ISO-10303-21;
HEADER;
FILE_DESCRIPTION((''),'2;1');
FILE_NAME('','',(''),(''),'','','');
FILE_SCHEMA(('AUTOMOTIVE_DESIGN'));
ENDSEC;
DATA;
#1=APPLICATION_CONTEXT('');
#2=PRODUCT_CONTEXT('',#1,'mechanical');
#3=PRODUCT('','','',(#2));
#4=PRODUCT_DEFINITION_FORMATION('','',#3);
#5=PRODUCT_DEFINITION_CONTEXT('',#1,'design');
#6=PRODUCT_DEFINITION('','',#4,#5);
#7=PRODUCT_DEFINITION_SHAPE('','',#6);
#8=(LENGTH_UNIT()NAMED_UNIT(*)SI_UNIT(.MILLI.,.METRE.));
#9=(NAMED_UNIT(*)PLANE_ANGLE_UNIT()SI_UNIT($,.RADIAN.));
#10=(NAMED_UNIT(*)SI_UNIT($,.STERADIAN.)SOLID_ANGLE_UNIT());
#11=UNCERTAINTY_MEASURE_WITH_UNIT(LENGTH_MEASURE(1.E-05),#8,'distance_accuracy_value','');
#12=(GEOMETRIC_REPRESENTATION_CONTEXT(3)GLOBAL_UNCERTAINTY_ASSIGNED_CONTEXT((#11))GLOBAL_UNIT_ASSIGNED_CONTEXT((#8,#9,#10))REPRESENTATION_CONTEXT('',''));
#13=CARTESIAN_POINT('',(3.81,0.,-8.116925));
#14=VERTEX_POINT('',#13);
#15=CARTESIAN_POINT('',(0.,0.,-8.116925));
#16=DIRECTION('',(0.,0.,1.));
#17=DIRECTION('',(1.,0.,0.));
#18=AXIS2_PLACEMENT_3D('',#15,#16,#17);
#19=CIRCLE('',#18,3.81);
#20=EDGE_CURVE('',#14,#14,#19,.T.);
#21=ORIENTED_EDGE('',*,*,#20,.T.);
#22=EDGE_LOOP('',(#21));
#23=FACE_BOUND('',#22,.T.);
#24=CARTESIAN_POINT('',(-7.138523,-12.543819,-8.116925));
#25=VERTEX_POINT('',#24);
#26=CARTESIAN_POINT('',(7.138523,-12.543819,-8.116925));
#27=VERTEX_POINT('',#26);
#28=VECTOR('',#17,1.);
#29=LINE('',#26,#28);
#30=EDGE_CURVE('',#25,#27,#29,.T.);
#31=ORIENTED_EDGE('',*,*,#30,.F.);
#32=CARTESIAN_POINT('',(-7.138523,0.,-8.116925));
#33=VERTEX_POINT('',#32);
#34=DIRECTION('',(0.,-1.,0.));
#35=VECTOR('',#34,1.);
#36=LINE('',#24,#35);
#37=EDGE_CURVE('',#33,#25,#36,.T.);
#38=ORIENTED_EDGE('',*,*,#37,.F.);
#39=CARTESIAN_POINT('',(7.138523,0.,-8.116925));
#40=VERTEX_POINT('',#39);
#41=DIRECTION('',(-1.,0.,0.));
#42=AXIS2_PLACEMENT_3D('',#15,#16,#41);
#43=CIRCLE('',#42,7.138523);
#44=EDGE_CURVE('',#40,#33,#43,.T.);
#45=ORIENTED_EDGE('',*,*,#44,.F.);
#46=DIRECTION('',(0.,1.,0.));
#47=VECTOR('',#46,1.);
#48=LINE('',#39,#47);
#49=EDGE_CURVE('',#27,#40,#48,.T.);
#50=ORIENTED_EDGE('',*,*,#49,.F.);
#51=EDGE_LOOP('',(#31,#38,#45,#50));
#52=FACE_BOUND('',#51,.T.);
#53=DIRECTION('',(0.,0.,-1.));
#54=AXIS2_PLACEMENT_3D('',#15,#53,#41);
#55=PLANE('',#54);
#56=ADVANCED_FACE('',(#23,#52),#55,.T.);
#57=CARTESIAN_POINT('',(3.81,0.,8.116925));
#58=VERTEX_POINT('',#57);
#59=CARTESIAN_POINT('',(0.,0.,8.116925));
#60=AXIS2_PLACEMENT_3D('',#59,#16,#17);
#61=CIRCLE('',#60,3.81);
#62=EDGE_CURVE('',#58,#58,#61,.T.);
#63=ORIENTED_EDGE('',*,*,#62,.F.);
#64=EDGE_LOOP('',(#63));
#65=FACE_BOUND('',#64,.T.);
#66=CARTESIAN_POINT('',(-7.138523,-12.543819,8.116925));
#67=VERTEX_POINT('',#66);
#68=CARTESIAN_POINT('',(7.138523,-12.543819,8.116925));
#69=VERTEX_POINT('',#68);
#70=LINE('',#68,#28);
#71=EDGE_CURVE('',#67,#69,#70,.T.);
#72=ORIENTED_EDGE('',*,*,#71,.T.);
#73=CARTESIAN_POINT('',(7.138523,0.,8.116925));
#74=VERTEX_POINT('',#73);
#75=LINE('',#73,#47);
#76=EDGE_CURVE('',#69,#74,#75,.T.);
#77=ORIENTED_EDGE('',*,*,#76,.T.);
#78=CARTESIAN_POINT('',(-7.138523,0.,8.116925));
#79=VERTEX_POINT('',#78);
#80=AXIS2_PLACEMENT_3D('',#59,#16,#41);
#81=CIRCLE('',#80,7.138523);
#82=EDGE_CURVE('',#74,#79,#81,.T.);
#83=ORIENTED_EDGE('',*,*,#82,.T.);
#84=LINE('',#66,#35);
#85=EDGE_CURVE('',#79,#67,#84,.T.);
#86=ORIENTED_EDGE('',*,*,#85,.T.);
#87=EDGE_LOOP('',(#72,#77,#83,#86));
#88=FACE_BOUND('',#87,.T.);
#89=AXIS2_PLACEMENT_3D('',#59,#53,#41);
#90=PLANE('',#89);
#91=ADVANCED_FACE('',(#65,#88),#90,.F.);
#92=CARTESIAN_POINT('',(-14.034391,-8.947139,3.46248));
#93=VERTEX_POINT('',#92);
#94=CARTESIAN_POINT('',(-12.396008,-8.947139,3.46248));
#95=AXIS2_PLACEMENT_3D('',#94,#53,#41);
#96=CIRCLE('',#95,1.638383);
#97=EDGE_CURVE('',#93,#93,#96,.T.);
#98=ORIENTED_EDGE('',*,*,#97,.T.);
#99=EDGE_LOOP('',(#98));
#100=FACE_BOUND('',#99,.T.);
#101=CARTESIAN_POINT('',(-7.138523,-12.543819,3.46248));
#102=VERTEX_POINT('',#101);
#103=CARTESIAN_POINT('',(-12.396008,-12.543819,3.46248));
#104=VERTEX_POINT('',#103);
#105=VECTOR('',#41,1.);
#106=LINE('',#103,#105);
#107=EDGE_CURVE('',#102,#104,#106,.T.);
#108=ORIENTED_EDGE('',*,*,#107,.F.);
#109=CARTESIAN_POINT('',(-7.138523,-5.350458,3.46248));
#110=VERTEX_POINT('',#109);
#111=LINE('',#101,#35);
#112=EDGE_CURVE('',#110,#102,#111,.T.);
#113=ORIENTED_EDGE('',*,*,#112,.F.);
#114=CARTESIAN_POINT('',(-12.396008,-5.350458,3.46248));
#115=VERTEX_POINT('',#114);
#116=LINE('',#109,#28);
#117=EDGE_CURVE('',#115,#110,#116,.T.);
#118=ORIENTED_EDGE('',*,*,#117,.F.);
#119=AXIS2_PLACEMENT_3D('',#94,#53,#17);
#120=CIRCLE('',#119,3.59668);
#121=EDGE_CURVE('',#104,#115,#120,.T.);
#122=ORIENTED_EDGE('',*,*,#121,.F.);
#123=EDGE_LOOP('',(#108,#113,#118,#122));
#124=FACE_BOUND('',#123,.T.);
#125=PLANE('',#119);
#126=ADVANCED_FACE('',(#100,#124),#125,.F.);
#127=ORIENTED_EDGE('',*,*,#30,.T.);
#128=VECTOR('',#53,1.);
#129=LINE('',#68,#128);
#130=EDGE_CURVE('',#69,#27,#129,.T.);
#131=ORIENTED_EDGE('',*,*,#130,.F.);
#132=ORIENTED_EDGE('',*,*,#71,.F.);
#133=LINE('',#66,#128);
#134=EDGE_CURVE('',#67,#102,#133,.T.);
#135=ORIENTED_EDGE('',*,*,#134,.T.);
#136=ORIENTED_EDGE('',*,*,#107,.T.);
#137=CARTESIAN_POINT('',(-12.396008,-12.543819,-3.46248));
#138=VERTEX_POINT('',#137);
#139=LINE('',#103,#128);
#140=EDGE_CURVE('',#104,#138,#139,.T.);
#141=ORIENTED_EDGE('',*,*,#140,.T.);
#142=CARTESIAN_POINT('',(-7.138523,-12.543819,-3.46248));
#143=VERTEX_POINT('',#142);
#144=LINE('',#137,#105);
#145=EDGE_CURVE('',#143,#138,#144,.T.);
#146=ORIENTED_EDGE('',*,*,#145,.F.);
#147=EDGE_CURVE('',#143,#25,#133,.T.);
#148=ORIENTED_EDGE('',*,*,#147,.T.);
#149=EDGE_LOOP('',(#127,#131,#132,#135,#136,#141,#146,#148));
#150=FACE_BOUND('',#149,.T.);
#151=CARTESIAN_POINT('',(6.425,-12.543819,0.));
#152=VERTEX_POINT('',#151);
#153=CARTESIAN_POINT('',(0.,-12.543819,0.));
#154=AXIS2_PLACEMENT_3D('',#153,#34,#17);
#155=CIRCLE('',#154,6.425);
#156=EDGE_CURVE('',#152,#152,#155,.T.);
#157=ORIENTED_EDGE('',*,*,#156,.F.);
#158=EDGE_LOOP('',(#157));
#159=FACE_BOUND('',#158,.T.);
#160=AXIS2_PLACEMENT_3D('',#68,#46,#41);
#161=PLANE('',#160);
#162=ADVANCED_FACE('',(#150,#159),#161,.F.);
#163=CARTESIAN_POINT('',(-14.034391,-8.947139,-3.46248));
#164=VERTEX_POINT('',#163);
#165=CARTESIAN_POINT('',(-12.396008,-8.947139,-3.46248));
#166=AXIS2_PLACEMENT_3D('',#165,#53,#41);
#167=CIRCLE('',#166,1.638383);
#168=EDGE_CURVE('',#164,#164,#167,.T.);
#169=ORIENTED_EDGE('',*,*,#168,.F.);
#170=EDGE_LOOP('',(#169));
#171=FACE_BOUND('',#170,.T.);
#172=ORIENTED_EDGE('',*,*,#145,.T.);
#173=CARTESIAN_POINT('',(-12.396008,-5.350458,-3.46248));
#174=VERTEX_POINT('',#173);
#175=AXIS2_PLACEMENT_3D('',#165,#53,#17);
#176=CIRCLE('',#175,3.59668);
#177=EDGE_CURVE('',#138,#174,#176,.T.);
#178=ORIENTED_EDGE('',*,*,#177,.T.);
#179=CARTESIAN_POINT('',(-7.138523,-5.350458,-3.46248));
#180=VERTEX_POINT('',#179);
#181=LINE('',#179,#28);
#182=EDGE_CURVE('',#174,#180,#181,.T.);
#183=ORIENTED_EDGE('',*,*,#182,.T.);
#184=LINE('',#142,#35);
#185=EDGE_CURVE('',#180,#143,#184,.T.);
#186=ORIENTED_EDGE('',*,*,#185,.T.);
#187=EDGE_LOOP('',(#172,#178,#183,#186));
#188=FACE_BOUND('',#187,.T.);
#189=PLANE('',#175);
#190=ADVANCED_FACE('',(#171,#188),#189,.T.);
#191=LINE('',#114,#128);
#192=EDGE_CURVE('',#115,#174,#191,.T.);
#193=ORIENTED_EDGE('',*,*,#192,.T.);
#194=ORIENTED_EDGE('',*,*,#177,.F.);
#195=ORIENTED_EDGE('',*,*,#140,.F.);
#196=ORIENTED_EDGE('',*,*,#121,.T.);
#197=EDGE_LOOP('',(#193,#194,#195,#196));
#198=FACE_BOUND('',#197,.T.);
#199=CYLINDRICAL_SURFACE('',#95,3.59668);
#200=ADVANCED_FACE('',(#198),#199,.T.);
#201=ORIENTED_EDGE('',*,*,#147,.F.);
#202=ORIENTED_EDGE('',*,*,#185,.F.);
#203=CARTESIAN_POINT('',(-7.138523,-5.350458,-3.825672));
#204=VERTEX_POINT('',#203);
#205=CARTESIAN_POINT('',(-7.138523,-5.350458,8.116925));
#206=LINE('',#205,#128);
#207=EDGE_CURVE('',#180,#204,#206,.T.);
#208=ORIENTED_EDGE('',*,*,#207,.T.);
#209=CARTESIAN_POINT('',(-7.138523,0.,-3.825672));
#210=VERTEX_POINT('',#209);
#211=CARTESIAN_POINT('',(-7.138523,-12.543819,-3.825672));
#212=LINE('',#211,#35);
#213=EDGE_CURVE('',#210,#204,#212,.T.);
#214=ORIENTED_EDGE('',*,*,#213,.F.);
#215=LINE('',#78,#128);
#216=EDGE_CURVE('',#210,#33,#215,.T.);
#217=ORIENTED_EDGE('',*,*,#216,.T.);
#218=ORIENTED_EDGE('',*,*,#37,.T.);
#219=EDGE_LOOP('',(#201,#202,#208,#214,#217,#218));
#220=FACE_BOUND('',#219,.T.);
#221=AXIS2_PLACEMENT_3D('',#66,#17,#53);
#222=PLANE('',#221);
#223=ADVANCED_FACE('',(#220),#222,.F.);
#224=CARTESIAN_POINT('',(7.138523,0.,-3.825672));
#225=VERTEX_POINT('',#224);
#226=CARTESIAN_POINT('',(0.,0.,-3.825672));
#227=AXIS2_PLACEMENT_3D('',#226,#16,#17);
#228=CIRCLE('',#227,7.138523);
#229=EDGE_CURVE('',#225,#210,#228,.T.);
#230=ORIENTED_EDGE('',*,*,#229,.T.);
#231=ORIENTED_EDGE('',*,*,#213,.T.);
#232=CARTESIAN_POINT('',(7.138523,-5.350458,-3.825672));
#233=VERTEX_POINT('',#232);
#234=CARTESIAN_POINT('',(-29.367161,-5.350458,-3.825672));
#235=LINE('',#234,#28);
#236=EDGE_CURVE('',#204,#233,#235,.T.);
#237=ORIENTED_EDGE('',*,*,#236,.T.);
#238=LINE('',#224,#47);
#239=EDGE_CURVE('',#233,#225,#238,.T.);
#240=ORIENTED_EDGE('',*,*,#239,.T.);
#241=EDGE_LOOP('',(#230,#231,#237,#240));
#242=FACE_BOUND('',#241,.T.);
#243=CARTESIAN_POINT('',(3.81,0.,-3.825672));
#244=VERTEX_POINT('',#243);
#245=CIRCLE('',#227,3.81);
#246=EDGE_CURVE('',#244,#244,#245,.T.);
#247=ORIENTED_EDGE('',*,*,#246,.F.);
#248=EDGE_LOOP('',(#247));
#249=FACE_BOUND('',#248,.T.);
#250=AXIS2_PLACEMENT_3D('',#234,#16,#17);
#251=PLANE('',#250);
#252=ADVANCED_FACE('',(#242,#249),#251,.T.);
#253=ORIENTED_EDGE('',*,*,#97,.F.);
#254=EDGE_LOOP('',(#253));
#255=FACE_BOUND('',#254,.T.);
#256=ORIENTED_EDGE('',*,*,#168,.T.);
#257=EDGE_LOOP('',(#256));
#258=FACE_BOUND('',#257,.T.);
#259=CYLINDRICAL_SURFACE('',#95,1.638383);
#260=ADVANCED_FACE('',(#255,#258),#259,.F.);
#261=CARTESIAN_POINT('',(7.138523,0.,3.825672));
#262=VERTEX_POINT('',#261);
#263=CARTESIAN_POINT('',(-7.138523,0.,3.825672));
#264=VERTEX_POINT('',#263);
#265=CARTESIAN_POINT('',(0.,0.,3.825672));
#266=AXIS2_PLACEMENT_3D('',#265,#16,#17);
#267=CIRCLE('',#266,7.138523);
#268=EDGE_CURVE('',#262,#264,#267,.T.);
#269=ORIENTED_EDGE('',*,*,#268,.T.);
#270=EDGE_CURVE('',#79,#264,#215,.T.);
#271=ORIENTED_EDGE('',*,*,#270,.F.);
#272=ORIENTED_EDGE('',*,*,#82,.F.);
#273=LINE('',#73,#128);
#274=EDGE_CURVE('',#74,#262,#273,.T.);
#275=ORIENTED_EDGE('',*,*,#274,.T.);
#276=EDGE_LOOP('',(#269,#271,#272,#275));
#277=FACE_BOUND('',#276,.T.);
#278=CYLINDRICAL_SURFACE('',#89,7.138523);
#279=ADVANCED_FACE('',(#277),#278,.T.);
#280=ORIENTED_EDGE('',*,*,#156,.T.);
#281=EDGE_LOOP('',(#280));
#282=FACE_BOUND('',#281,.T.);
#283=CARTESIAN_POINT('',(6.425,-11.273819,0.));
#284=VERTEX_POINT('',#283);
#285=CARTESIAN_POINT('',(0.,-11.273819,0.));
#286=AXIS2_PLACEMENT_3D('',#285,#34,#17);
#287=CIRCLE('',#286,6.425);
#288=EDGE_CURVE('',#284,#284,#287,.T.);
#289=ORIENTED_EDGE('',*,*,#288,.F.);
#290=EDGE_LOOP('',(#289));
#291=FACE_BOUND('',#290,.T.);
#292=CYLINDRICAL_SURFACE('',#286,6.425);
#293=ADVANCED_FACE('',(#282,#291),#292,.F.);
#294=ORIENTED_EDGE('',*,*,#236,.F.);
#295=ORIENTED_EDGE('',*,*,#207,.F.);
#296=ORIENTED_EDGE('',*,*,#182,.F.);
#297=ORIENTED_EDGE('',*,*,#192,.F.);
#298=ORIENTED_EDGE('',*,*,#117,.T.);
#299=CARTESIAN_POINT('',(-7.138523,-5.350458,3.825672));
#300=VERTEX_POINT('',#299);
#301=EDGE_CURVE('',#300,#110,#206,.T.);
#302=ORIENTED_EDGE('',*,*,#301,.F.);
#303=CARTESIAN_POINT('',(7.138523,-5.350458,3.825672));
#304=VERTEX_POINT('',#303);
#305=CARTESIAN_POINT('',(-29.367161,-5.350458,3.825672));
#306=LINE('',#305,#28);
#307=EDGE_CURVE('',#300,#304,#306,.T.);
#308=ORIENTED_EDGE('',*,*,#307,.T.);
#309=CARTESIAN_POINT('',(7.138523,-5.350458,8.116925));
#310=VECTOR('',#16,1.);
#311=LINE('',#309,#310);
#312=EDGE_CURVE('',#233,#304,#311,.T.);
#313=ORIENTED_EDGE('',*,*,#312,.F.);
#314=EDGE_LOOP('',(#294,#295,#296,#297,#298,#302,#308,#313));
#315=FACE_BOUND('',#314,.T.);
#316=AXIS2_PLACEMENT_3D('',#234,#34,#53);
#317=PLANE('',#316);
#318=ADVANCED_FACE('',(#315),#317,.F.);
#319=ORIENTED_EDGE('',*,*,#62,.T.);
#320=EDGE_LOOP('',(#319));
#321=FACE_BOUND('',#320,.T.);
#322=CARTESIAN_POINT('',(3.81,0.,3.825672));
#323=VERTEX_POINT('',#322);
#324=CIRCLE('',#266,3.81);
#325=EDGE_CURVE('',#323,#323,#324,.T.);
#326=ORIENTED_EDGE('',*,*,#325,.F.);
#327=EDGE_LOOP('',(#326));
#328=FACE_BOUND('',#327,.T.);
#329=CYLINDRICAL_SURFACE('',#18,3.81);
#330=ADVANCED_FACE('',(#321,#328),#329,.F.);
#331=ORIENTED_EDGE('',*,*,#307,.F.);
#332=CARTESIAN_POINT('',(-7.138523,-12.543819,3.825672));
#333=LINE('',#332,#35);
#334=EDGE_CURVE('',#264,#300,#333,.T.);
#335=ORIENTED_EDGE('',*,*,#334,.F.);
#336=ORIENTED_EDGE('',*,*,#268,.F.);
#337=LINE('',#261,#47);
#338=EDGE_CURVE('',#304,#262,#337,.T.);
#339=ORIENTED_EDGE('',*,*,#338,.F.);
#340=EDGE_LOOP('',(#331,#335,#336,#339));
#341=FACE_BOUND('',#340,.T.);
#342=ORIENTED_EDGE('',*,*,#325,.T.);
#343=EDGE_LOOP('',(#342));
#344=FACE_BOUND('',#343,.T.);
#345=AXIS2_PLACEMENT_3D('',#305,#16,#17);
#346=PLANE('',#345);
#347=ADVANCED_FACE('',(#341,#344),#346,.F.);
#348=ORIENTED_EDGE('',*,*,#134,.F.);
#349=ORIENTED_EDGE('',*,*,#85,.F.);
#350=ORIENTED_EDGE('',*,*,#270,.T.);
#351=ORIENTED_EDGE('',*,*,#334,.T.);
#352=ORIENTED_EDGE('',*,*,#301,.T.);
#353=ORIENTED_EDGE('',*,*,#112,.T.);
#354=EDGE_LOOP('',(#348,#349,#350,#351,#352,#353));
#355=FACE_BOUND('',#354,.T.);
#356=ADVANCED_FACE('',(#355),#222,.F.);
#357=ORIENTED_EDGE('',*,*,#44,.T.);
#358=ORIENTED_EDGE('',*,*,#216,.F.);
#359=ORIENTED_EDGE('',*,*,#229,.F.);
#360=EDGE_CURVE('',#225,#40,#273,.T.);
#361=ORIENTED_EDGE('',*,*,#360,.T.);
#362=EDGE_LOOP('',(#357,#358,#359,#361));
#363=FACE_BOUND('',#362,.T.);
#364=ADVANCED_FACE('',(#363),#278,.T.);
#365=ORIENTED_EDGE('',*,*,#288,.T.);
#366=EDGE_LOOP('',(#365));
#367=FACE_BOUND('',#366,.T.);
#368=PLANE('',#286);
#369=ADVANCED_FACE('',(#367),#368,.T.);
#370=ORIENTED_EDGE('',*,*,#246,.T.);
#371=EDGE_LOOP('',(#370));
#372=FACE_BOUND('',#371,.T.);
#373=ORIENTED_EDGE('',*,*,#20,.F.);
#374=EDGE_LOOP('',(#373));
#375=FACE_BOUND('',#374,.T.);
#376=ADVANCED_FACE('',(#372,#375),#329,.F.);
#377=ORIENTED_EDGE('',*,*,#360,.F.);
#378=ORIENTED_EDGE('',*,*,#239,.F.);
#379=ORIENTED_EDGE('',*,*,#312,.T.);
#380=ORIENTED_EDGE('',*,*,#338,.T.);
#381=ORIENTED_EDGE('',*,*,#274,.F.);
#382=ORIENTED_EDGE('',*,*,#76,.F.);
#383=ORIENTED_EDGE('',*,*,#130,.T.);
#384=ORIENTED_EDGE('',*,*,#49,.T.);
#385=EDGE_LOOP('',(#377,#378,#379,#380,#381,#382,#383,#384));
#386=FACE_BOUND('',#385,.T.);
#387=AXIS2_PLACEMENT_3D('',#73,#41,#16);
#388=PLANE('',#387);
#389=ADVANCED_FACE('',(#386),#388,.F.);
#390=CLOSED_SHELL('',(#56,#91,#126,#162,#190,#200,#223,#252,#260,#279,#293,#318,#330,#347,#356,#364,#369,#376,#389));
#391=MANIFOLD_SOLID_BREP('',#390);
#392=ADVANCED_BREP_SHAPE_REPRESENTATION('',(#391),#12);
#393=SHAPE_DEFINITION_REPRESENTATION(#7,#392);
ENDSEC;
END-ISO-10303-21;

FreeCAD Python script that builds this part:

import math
import FreeCAD as App
import Part
import Sketcher

V = App.Vector
Q = App.Units.Quantity


def add_polygon(sketch, points):
    """Adds a closed chain of lines whose ends are joined by coincident constraints."""
    first, n = sketch.GeometryCount, len(points)
    for a, b in zip(points, points[1:] + points[:1]):
        sketch.addGeometry(Part.LineSegment(App.Vector(*a, 0), App.Vector(*b, 0)), False)
    for i in range(n):
        sketch.addConstraint(Sketcher.Constraint("Coincident", first + i, 2, first + (i + 1) % n, 1))

doc = App.newDocument("Part")
body = doc.addObject("PartDesign::Body", "Body")

sketch1 = doc.addObject("Sketcher::SketchObject", "Sketch")
body.addObject(sketch1)
sketch1.AttachmentSupport = (doc.XY_Plane, [""])
sketch1.MapMode = "FlatFace"
sketch1.addGeometry(Part.LineSegment(V(-7.138523, 0, 0), V(-7.138523, -12.543819, 0)), False)
sketch1.addGeometry(Part.LineSegment(V(-7.138523, -12.543819, 0), V(7.138523, -12.543819, 0)), False)
sketch1.addGeometry(Part.LineSegment(V(7.138523, -12.543819, 0), V(7.138523, 0, 0)), False)
sketch1.addGeometry(Part.ArcOfCircle(Part.Circle(V(0, 0, 0), V(0, 0, 1), 7.138523), math.radians(0), math.radians(180)), False)
sketch1.addConstraint(Sketcher.Constraint("Coincident", 0, 2, 1, 1))
sketch1.addConstraint(Sketcher.Constraint("Coincident", 1, 2, 2, 1))
sketch1.addConstraint(Sketcher.Constraint("Tangent", 2, 2, 3, 1))
sketch1.addConstraint(Sketcher.Constraint("Tangent", 3, 2, 0, 1))
sketch1.addConstraint(Sketcher.Constraint("Vertical", 0))
sketch1.addConstraint(Sketcher.Constraint("Horizontal", 1))
sketch1.addConstraint(Sketcher.Constraint("Vertical", 2))
sketch1.addConstraint(Sketcher.Constraint("Coincident", 3, 3, -1, 1))
sketch1.addConstraint(Sketcher.Constraint("Radius", 3, 7.138523))
sketch1.addConstraint(Sketcher.Constraint("DistanceY", 0, 2, 0, 1, 12.543819))
pad1 = doc.addObject("PartDesign::Pad", "Pad")
body.addObject(pad1)
pad1.Profile = sketch1
pad1.Length = 16.23385
pad1.Midplane = True

sketch2 = doc.addObject("Sketcher::SketchObject", "Sketch001")
body.addObject(sketch2)
sketch2.AttachmentSupport = (doc.XY_Plane, [""])
sketch2.MapMode = "FlatFace"
add_polygon(sketch2, [(-29.367161, 24.405762), (-29.367161, -5.350458), (26.794675, -5.350458), (26.794675, 24.405762)])
sketch2.addConstraint(Sketcher.Constraint("Vertical", 0))
sketch2.addConstraint(Sketcher.Constraint("Horizontal", 1))
sketch2.addConstraint(Sketcher.Constraint("Vertical", 2))
sketch2.addConstraint(Sketcher.Constraint("Horizontal", 3))
sketch2.addConstraint(Sketcher.Constraint("DistanceY", 0, 2, 0, 1, 29.756221))
sketch2.addConstraint(Sketcher.Constraint("DistanceX", 1, 1, 1, 2, 56.161837))
sketch2.addConstraint(Sketcher.Constraint("DistanceX", 0, 2, -1, 1, 29.367161))
sketch2.addConstraint(Sketcher.Constraint("DistanceY", 0, 2, -1, 1, 5.350458))
pocket1 = doc.addObject("PartDesign::Pocket", "Pocket")
body.addObject(pocket1)
pocket1.Profile = sketch2
pocket1.Length = 7.651345
pocket1.Midplane = True

sketch3 = doc.addObject("Sketcher::SketchObject", "Sketch002")
body.addObject(sketch3)
sketch3.AttachmentSupport = (doc.XY_Plane, [""])
sketch3.MapMode = "FlatFace"
sketch3.AttachmentOffset = App.Placement(V(0, 0, 8.116925), App.Rotation())
sketch3.addGeometry(Part.Circle(V(0, 0, 0), V(0, 0, 1), 3.81), False)
sketch3.addConstraint(Sketcher.Constraint("Coincident", 0, 3, -1, 1))
sketch3.addConstraint(Sketcher.Constraint("Diameter", 0, Q("0.3 in")))
pocket2 = doc.addObject("PartDesign::Pocket", "Pocket001")
body.addObject(pocket2)
pocket2.Profile = sketch3
pocket2.Type = "ThroughAll"

sketch4 = doc.addObject("Sketcher::SketchObject", "Sketch003")
body.addObject(sketch4)
sketch4.AttachmentSupport = (doc.XZ_Plane, [""])
sketch4.MapMode = "FlatFace"
sketch4.AttachmentOffset = App.Placement(V(0, 0, 12.543819), App.Rotation())
sketch4.addGeometry(Part.Circle(V(0, 0, 0), V(0, 0, 1), 6.425), False)
sketch4.addConstraint(Sketcher.Constraint("Coincident", 0, 3, -1, 1))
sketch4.addConstraint(Sketcher.Constraint("Diameter", 0, 12.85))
pocket3 = doc.addObject("PartDesign::Pocket", "Pocket002")
body.addObject(pocket3)
pocket3.Profile = sketch4
pocket3.Length = Q("0.05 in")

sketch5 = doc.addObject("Sketcher::SketchObject", "Sketch004")
body.addObject(sketch5)
sketch5.AttachmentSupport = (doc.XY_Plane, [""])
sketch5.MapMode = "FlatFace"
sketch5.addGeometry(Part.LineSegment(V(7.138523, -5.350458, 0), V(7.138523, -12.543819, 0)), False)
sketch5.addGeometry(Part.LineSegment(V(7.138523, -12.543819, 0), V(12.396008, -12.543819, 0)), False)
sketch5.addGeometry(Part.ArcOfCircle(Part.Circle(V(12.396008, -8.947139, 0), V(0, 0, 1), 3.59668), math.radians(-90), math.radians(90)), False)
sketch5.addGeometry(Part.LineSegment(V(12.396008, -5.350458, 0), V(7.138523, -5.350458, 0)), False)
sketch5.addGeometry(Part.Circle(V(12.396008, -8.947139, 0), V(0, 0, 1), 1.638383), False)
sketch5.addConstraint(Sketcher.Constraint("Coincident", 0, 2, 1, 1))
sketch5.addConstraint(Sketcher.Constraint("Tangent", 1, 2, 2, 1))
sketch5.addConstraint(Sketcher.Constraint("Tangent", 2, 2, 3, 1))
sketch5.addConstraint(Sketcher.Constraint("Coincident", 3, 2, 0, 1))
sketch5.addConstraint(Sketcher.Constraint("Vertical", 0))
sketch5.addConstraint(Sketcher.Constraint("Horizontal", 1))
sketch5.addConstraint(Sketcher.Constraint("Horizontal", 3))
sketch5.addConstraint(Sketcher.Constraint("Coincident", 4, 3, 2, 3))
sketch5.addConstraint(Sketcher.Constraint("Radius", 2, 3.59668))
sketch5.addConstraint(Sketcher.Constraint("Diameter", 4, 3.276766))
sketch5.addConstraint(Sketcher.Constraint("DistanceX", 1, 1, 1, 2, 5.257485))
sketch5.addConstraint(Sketcher.Constraint("DistanceX", -1, 1, 2, 3, 12.396008))
sketch5.addConstraint(Sketcher.Constraint("DistanceY", 2, 3, -1, 1, 8.947139))
pad2 = doc.addObject("PartDesign::Pad", "Pad001")
body.addObject(pad2)
pad2.Profile = sketch5
pad2.Length = 6.924959
pad2.Midplane = True
doc.recompute()

mirrored = doc.addObject("PartDesign::Mirrored", "Mirrored")
body.addObject(mirrored)
mirrored.Originals = [pad2]
mirrored.MirrorPlane = (doc.YZ_Plane, [""])
body.Tip = mirrored

sketch6 = doc.addObject("Sketcher::SketchObject", "Sketch005")
body.addObject(sketch6)
sketch6.AttachmentSupport = (doc.XY_Plane, [""])
sketch6.MapMode = "FlatFace"
sketch6.AttachmentOffset = App.Placement(V(0, 0, 3.46248), App.Rotation())
sketch6.addGeometry(Part.LineSegment(V(7.138523, -12.543819, 0), V(12.396008, -12.543819, 0)), False)
sketch6.addGeometry(Part.ArcOfCircle(Part.Circle(V(12.396008, -8.947139, 0), V(0, 0, 1), 3.59668), math.radians(-90), math.radians(90)), False)
sketch6.addGeometry(Part.LineSegment(V(12.396008, -5.350458, 0), V(7.138523, -5.350458, 0)), False)
sketch6.addGeometry(Part.LineSegment(V(7.138523, -5.350458, 0), V(7.138523, -12.543819, 0)), False)
sketch6.addConstraint(Sketcher.Constraint("Tangent", 0, 2, 1, 1))
sketch6.addConstraint(Sketcher.Constraint("Tangent", 1, 2, 2, 1))
sketch6.addConstraint(Sketcher.Constraint("Coincident", 2, 2, 3, 1))
sketch6.addConstraint(Sketcher.Constraint("Coincident", 3, 2, 0, 1))
sketch6.addConstraint(Sketcher.Constraint("Horizontal", 0))
sketch6.addConstraint(Sketcher.Constraint("Horizontal", 2))
sketch6.addConstraint(Sketcher.Constraint("Vertical", 3))
sketch6.addConstraint(Sketcher.Constraint("Radius", 1, 3.59668))
sketch6.addConstraint(Sketcher.Constraint("DistanceX", 0, 1, 0, 2, 5.257485))
sketch6.addConstraint(Sketcher.Constraint("DistanceX", -1, 1, 1, 3, 12.396008))
sketch6.addConstraint(Sketcher.Constraint("DistanceY", 1, 3, -1, 1, 8.947139))
pocket4 = doc.addObject("PartDesign::Pocket", "Pocket003")
body.addObject(pocket4)
pocket4.Profile = sketch6
pocket4.Type = "ThroughAll"

doc.recompute()
